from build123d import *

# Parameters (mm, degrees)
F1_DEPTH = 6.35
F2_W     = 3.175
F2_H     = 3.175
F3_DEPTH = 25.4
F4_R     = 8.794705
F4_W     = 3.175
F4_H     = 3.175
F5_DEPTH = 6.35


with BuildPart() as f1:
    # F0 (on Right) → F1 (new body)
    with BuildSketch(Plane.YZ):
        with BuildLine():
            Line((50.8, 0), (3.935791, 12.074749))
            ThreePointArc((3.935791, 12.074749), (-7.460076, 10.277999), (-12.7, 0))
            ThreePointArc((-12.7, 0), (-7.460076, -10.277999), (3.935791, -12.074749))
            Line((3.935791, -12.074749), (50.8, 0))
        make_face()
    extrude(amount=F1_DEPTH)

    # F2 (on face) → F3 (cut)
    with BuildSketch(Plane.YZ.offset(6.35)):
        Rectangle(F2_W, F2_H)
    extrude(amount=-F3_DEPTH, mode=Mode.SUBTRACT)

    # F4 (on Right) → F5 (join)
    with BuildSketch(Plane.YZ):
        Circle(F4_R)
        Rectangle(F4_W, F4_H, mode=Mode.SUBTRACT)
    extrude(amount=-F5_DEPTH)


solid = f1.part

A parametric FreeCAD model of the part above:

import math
import FreeCAD as App
import Part
import Sketcher

V = App.Vector
Q = App.Units.Quantity

doc = App.newDocument("Part")
body = doc.addObject("PartDesign::Body", "Body")

# Sketch on YZ plane
sketch1 = doc.addObject("Sketcher::SketchObject", "Sketch")
body.addObject(sketch1)
sketch1.AttachmentSupport = (doc.YZ_Plane, [""])
sketch1.MapMode = "FlatFace"
sketch1.addGeometry(Part.LineSegment(V(51, 0, 0), V(4, 12, 0)), False)
sketch1.addGeometry(Part.ArcOfCircle(Part.Circle(V(0, 0, 0), V(0, 0, 1), 13), math.radians(72), math.radians(180)), False)
sketch1.addGeometry(Part.ArcOfCircle(Part.Circle(V(0, 0, 0), V(0, 0, 1), 13), math.radians(-180), math.radians(-72)), False)
sketch1.addGeometry(Part.LineSegment(V(4, -12, 0), V(51, 0, 0)), False)
sketch1.addConstraint(Sketcher.Constraint("Coincident", 0, 2, 1, 1))
sketch1.addConstraint(Sketcher.Constraint("Tangent", 1, 2, 2, 1))
sketch1.addConstraint(Sketcher.Constraint("Coincident", 2, 2, 3, 1))
sketch1.addConstraint(Sketcher.Constraint("Coincident", 3, 2, 0, 1))
sketch1.addConstraint(Sketcher.Constraint("Coincident", 1, 3, -1, 1))
sketch1.addConstraint(Sketcher.Constraint("Equal", 1, 2))
sketch1.addConstraint(Sketcher.Constraint("PointOnObject", 1, 2, -1))
sketch1.addConstraint(Sketcher.Constraint("PointOnObject", 3, 2, -1))
sketch1.addConstraint(Sketcher.Constraint("Vertical", 0, 2, 2, 2))
sketch1.addConstraint(Sketcher.Constraint("Radius", 1, Q("0.5 in")))
sketch1.addConstraint(Sketcher.Constraint("DistanceX", -1, 1, 3, 2, Q("2 in")))
sketch1.addConstraint(Sketcher.Constraint("Distance", 0, 48.394769))
pad1 = doc.addObject("PartDesign::Pad", "Pad")
body.addObject(pad1)
pad1.Profile = sketch1
pad1.Length = Q("0.25 in")

# Sketch on YZ plane
sketch2 = doc.addObject("Sketcher::SketchObject", "Sketch001")
body.addObject(sketch2)
sketch2.AttachmentSupport = (doc.YZ_Plane, [""])
sketch2.MapMode = "FlatFace"
sketch2.AttachmentOffset = App.Placement(V(0, 0, 0.25 * 25.4), App.Rotation())
sketch2.addGeometry(Part.LineSegment(V(-1.6, 1.6, 0), V(-1.6, -1.6, 0)), False)
sketch2.addGeometry(Part.LineSegment(V(-1.6, -1.6, 0), V(1.6, -1.6, 0)), False)
sketch2.addGeometry(Part.LineSegment(V(1.6, -1.6, 0), V(1.6, 1.6, 0)), False)
sketch2.addGeometry(Part.LineSegment(V(1.6, 1.6, 0), V(-1.6, 1.6, 0)), False)
sketch2.addConstraint(Sketcher.Constraint("Coincident", 0, 2, 1, 1))
sketch2.addConstraint(Sketcher.Constraint("Coincident", 1, 2, 2, 1))
sketch2.addConstraint(Sketcher.Constraint("Coincident", 2, 2, 3, 1))
sketch2.addConstraint(Sketcher.Constraint("Coincident", 3, 2, 0, 1))
sketch2.addConstraint(Sketcher.Constraint("Vertical", 0))
sketch2.addConstraint(Sketcher.Constraint("Horizontal", 1))
sketch2.addConstraint(Sketcher.Constraint("Vertical", 2))
sketch2.addConstraint(Sketcher.Constraint("Horizontal", 3))
sketch2.addConstraint(Sketcher.Constraint("Symmetric", 0, 2, 2, 2, -1, 1))
sketch2.addConstraint(Sketcher.Constraint("Equal", 3, 0))
sketch2.addConstraint(Sketcher.Constraint("DistanceX", 1, 1, 1, 2, Q("0.125 in")))
pocket1 = doc.addObject("PartDesign::Pocket", "Pocket")
body.addObject(pocket1)
pocket1.Profile = sketch2
pocket1.Length = Q("1 in")

# Sketch on YZ plane
sketch3 = doc.addObject("Sketcher::SketchObject", "Sketch002")
body.addObject(sketch3)
sketch3.AttachmentSupport = (doc.YZ_Plane, [""])
sketch3.MapMode = "FlatFace"
sketch3.addGeometry(Part.Circle(V(0, 0, 0), V(0, 0, 1), 8.8), False)
sketch3.addGeometry(Part.LineSegment(V(1.6, -1.6, 0), V(-1.6, -1.6, 0)), False)
sketch3.addGeometry(Part.LineSegment(V(-1.6, -1.6, 0), V(-1.6, 1.6, 0)), False)
sketch3.addGeometry(Part.LineSegment(V(-1.6, 1.6, 0), V(1.6, 1.6, 0)), False)
sketch3.addGeometry(Part.LineSegment(V(1.6, 1.6, 0), V(1.6, -1.6, 0)), False)
sketch3.addConstraint(Sketcher.Constraint("Coincident", 1, 2, 2, 1))
sketch3.addConstraint(Sketcher.Constraint("Coincident", 2, 2, 3, 1))
sketch3.addConstraint(Sketcher.Constraint("Coincident", 3, 2, 4, 1))
sketch3.addConstraint(Sketcher.Constraint("Coincident", 4, 2, 1, 1))
sketch3.addConstraint(Sketcher.Constraint("Horizontal", 1))
sketch3.addConstraint(Sketcher.Constraint("Vertical", 2))
sketch3.addConstraint(Sketcher.Constraint("Horizontal", 3))
sketch3.addConstraint(Sketcher.Constraint("Vertical", 4))
sketch3.addConstraint(Sketcher.Constraint("Coincident", 0, 3, -1, 1))
sketch3.addConstraint(Sketcher.Constraint("Symmetric", 1, 2, 3, 2, -1, 1))
sketch3.addConstraint(Sketcher.Constraint("Equal", 3, 2))
sketch3.addConstraint(Sketcher.Constraint("DistanceX", 1, 2, 1, 1, Q("0.125 in")))
sketch3.addConstraint(Sketcher.Constraint("Diameter", 0, 17.58941))
pad2 = doc.addObject("PartDesign::Pad", "Pad001")
body.addObject(pad2)
pad2.Profile = sketch3
pad2.Length = Q("0.25 in")
pad2.Reversed = True

doc.recompute()
